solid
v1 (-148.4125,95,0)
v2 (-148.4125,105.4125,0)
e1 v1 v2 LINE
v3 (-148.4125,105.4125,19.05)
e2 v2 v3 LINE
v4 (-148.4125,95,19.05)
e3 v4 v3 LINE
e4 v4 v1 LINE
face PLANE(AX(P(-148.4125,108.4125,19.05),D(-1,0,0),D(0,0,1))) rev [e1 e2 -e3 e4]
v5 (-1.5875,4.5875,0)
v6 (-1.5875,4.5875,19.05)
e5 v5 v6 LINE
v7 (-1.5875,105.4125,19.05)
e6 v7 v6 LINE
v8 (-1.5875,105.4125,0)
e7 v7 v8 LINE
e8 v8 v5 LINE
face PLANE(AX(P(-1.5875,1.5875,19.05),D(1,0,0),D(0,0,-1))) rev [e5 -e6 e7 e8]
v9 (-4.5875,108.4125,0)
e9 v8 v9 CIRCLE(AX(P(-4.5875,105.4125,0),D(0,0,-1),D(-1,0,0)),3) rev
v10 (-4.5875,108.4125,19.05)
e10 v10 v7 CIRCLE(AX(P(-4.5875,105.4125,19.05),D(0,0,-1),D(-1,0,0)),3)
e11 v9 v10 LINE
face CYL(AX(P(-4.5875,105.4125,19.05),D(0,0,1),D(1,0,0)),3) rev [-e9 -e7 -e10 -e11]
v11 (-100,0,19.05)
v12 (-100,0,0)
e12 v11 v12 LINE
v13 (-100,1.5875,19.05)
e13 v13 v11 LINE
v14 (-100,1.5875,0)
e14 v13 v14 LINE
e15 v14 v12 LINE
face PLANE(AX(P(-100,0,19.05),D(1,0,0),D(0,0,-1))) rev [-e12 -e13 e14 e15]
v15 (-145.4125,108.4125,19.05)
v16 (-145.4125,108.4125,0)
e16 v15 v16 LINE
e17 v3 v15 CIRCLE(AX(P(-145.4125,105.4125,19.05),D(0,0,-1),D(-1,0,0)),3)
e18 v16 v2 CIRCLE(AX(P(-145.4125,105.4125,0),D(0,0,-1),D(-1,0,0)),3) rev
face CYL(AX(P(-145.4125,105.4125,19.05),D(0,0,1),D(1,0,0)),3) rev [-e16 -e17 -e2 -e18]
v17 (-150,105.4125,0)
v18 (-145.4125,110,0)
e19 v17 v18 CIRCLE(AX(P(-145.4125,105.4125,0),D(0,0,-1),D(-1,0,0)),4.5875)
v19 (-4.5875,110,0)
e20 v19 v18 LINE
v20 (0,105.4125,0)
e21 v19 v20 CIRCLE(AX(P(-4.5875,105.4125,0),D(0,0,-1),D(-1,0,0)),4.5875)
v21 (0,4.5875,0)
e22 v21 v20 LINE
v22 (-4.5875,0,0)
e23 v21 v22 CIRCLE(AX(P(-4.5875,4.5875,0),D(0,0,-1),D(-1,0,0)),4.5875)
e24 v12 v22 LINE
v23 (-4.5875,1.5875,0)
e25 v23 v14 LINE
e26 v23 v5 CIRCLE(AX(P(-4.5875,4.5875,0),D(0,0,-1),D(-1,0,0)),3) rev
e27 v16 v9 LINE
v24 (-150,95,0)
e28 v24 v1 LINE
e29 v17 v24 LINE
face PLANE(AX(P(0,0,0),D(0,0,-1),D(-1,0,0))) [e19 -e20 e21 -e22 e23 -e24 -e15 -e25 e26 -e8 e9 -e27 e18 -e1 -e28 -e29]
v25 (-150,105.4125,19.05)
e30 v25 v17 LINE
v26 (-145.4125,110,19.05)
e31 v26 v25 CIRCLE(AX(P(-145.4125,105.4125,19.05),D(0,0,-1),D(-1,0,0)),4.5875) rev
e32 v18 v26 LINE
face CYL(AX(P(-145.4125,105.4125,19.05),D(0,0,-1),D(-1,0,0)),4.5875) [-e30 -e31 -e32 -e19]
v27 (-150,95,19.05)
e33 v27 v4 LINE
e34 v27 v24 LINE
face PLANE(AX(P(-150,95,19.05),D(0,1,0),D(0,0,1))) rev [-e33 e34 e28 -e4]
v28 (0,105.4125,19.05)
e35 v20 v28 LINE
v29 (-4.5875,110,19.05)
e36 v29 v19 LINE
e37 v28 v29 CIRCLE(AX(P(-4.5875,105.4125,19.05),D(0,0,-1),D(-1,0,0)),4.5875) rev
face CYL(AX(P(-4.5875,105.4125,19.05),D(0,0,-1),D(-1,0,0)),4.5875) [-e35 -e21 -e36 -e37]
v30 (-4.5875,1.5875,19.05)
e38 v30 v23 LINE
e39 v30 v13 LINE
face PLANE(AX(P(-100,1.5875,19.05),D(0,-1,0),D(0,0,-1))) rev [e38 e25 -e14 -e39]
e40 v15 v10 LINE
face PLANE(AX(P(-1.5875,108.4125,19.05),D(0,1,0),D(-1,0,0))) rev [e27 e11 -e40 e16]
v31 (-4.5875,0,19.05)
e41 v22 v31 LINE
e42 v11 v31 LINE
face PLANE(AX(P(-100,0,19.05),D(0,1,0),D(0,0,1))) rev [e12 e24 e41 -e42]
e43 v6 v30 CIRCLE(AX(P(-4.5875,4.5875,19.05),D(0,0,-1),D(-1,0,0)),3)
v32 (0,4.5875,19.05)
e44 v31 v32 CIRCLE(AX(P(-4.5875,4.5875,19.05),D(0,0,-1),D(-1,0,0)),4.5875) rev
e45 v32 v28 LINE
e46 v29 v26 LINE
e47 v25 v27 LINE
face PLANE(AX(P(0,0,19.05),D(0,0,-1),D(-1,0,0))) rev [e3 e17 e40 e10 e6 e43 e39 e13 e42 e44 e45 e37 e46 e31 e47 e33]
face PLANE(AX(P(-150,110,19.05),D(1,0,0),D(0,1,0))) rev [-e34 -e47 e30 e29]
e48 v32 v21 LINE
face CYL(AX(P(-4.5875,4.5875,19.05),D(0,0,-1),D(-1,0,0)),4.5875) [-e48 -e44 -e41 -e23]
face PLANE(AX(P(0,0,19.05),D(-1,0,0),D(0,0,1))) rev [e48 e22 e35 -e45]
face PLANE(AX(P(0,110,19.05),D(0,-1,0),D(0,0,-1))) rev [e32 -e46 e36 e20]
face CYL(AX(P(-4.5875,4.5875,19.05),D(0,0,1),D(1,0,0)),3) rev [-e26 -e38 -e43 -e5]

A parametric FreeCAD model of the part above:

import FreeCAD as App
import Part
import Sketcher


def edges_at(feature, points):
    """Names of the edges that pass closest to the given points."""
    edges = feature.Shape.Edges
    near = lambda p: min(range(len(edges)), key=lambda i: edges[i].distToShape(Part.Vertex(*p))[0])
    return sorted({f"Edge{near(p) + 1}" for p in points})

doc = App.newDocument("Part")
body = doc.addObject("PartDesign::Body", "Body")

sketch1 = body.newObject("Sketcher::SketchObject", "Sketch")
sketch1.AttachmentSupport = (doc.getObject("XY_Plane"), [""])
sketch1.MapMode = "FlatFace"
sketch1.addGeometry([
    Part.LineSegment(App.Vector(-100, 0, 0), App.Vector(0, 0, 0)),
    Part.LineSegment(App.Vector(0, 0, 0), App.Vector(0, 110, 0)),
    Part.LineSegment(App.Vector(0, 110, 0), App.Vector(-150, 110, 0)),
    Part.LineSegment(App.Vector(-150, 110, 0), App.Vector(-150, 95, 0)),
    Part.LineSegment(App.Vector(-150, 95, 0), App.Vector(-148.4, 95, 0)),
    Part.LineSegment(App.Vector(-148.4, 95, 0), App.Vector(-148.4, 108.4, 0)),
    Part.LineSegment(App.Vector(-148.4, 108.4, 0), App.Vector(-1.6, 108.4, 0)),
    Part.LineSegment(App.Vector(-1.6, 108.4, 0), App.Vector(-1.6, 1.6, 0)),
    Part.LineSegment(App.Vector(-1.6, 1.6, 0), App.Vector(-100, 1.6, 0)),
    Part.LineSegment(App.Vector(-100, 1.6, 0), App.Vector(-100, 0, 0)),
], False)
sketch1.addConstraint([
    Sketcher.Constraint("Coincident", 0, 2, 1, 1),
    Sketcher.Constraint("Coincident", 1, 2, 2, 1),
    Sketcher.Constraint("Coincident", 2, 2, 3, 1),
    Sketcher.Constraint("Coincident", 3, 2, 4, 1),
    Sketcher.Constraint("Coincident", 4, 2, 5, 1),
    Sketcher.Constraint("Coincident", 5, 2, 6, 1),
    Sketcher.Constraint("Coincident", 6, 2, 7, 1),
    Sketcher.Constraint("Coincident", 7, 2, 8, 1),
    Sketcher.Constraint("Coincident", 8, 2, 9, 1),
    Sketcher.Constraint("Coincident", 9, 2, 0, 1),
    Sketcher.Constraint("Horizontal", 0),
    Sketcher.Constraint("Vertical", 1),
    Sketcher.Constraint("Horizontal", 2),
    Sketcher.Constraint("Vertical", 3),
    Sketcher.Constraint("Horizontal", 4),
    Sketcher.Constraint("Vertical", 5),
    Sketcher.Constraint("Horizontal", 6),
    Sketcher.Constraint("Vertical", 7),
    Sketcher.Constraint("Horizontal", 8),
    Sketcher.Constraint("Vertical", 9),
    Sketcher.Constraint("Coincident", 0, 2, -1, 1),
    Sketcher.Constraint("Equal", 4, 9),
    Sketcher.Constraint("DistanceX", 0, 1, 0, 2, 100.0),
    Sketcher.Constraint("DistanceX", 2, 2, 2, 1, 150.0),
    Sketcher.Constraint("DistanceY", 1, 1, 1, 2, 110.0),
    Sketcher.Constraint("DistanceY", 3, 2, 3, 1, 15.0),
    Sketcher.Constraint("DistanceX", 6, 1, 6, 2, 146.825),
    Sketcher.Constraint("DistanceY", 7, 2, 7, 1, 106.825),
    Sketcher.Constraint("DistanceX", 4, 1, 4, 2, 1.5875),
])
pad1 = body.newObject("PartDesign::Pad", "Pad")
pad1.Profile = sketch1
pad1.Length = 19.05
doc.recompute()

fillet = body.newObject("PartDesign::Fillet", "Fillet")
fillet.Base = (pad1, edges_at(pad1, [(-1.587, 1.587, 9.525), (-1.587, 108.412, 9.525), (-148.412, 108.412, 9.525)]))
fillet.Radius = 3
doc.recompute()

fillet2 = body.newObject("PartDesign::Fillet", "Fillet001")
fillet2.Base = (fillet, edges_at(fillet, [(-150, 110, 9.525), (0, 110, 9.525), (0, 0, 9.525)]))
fillet2.Radius = 4.5875

doc.recompute()
